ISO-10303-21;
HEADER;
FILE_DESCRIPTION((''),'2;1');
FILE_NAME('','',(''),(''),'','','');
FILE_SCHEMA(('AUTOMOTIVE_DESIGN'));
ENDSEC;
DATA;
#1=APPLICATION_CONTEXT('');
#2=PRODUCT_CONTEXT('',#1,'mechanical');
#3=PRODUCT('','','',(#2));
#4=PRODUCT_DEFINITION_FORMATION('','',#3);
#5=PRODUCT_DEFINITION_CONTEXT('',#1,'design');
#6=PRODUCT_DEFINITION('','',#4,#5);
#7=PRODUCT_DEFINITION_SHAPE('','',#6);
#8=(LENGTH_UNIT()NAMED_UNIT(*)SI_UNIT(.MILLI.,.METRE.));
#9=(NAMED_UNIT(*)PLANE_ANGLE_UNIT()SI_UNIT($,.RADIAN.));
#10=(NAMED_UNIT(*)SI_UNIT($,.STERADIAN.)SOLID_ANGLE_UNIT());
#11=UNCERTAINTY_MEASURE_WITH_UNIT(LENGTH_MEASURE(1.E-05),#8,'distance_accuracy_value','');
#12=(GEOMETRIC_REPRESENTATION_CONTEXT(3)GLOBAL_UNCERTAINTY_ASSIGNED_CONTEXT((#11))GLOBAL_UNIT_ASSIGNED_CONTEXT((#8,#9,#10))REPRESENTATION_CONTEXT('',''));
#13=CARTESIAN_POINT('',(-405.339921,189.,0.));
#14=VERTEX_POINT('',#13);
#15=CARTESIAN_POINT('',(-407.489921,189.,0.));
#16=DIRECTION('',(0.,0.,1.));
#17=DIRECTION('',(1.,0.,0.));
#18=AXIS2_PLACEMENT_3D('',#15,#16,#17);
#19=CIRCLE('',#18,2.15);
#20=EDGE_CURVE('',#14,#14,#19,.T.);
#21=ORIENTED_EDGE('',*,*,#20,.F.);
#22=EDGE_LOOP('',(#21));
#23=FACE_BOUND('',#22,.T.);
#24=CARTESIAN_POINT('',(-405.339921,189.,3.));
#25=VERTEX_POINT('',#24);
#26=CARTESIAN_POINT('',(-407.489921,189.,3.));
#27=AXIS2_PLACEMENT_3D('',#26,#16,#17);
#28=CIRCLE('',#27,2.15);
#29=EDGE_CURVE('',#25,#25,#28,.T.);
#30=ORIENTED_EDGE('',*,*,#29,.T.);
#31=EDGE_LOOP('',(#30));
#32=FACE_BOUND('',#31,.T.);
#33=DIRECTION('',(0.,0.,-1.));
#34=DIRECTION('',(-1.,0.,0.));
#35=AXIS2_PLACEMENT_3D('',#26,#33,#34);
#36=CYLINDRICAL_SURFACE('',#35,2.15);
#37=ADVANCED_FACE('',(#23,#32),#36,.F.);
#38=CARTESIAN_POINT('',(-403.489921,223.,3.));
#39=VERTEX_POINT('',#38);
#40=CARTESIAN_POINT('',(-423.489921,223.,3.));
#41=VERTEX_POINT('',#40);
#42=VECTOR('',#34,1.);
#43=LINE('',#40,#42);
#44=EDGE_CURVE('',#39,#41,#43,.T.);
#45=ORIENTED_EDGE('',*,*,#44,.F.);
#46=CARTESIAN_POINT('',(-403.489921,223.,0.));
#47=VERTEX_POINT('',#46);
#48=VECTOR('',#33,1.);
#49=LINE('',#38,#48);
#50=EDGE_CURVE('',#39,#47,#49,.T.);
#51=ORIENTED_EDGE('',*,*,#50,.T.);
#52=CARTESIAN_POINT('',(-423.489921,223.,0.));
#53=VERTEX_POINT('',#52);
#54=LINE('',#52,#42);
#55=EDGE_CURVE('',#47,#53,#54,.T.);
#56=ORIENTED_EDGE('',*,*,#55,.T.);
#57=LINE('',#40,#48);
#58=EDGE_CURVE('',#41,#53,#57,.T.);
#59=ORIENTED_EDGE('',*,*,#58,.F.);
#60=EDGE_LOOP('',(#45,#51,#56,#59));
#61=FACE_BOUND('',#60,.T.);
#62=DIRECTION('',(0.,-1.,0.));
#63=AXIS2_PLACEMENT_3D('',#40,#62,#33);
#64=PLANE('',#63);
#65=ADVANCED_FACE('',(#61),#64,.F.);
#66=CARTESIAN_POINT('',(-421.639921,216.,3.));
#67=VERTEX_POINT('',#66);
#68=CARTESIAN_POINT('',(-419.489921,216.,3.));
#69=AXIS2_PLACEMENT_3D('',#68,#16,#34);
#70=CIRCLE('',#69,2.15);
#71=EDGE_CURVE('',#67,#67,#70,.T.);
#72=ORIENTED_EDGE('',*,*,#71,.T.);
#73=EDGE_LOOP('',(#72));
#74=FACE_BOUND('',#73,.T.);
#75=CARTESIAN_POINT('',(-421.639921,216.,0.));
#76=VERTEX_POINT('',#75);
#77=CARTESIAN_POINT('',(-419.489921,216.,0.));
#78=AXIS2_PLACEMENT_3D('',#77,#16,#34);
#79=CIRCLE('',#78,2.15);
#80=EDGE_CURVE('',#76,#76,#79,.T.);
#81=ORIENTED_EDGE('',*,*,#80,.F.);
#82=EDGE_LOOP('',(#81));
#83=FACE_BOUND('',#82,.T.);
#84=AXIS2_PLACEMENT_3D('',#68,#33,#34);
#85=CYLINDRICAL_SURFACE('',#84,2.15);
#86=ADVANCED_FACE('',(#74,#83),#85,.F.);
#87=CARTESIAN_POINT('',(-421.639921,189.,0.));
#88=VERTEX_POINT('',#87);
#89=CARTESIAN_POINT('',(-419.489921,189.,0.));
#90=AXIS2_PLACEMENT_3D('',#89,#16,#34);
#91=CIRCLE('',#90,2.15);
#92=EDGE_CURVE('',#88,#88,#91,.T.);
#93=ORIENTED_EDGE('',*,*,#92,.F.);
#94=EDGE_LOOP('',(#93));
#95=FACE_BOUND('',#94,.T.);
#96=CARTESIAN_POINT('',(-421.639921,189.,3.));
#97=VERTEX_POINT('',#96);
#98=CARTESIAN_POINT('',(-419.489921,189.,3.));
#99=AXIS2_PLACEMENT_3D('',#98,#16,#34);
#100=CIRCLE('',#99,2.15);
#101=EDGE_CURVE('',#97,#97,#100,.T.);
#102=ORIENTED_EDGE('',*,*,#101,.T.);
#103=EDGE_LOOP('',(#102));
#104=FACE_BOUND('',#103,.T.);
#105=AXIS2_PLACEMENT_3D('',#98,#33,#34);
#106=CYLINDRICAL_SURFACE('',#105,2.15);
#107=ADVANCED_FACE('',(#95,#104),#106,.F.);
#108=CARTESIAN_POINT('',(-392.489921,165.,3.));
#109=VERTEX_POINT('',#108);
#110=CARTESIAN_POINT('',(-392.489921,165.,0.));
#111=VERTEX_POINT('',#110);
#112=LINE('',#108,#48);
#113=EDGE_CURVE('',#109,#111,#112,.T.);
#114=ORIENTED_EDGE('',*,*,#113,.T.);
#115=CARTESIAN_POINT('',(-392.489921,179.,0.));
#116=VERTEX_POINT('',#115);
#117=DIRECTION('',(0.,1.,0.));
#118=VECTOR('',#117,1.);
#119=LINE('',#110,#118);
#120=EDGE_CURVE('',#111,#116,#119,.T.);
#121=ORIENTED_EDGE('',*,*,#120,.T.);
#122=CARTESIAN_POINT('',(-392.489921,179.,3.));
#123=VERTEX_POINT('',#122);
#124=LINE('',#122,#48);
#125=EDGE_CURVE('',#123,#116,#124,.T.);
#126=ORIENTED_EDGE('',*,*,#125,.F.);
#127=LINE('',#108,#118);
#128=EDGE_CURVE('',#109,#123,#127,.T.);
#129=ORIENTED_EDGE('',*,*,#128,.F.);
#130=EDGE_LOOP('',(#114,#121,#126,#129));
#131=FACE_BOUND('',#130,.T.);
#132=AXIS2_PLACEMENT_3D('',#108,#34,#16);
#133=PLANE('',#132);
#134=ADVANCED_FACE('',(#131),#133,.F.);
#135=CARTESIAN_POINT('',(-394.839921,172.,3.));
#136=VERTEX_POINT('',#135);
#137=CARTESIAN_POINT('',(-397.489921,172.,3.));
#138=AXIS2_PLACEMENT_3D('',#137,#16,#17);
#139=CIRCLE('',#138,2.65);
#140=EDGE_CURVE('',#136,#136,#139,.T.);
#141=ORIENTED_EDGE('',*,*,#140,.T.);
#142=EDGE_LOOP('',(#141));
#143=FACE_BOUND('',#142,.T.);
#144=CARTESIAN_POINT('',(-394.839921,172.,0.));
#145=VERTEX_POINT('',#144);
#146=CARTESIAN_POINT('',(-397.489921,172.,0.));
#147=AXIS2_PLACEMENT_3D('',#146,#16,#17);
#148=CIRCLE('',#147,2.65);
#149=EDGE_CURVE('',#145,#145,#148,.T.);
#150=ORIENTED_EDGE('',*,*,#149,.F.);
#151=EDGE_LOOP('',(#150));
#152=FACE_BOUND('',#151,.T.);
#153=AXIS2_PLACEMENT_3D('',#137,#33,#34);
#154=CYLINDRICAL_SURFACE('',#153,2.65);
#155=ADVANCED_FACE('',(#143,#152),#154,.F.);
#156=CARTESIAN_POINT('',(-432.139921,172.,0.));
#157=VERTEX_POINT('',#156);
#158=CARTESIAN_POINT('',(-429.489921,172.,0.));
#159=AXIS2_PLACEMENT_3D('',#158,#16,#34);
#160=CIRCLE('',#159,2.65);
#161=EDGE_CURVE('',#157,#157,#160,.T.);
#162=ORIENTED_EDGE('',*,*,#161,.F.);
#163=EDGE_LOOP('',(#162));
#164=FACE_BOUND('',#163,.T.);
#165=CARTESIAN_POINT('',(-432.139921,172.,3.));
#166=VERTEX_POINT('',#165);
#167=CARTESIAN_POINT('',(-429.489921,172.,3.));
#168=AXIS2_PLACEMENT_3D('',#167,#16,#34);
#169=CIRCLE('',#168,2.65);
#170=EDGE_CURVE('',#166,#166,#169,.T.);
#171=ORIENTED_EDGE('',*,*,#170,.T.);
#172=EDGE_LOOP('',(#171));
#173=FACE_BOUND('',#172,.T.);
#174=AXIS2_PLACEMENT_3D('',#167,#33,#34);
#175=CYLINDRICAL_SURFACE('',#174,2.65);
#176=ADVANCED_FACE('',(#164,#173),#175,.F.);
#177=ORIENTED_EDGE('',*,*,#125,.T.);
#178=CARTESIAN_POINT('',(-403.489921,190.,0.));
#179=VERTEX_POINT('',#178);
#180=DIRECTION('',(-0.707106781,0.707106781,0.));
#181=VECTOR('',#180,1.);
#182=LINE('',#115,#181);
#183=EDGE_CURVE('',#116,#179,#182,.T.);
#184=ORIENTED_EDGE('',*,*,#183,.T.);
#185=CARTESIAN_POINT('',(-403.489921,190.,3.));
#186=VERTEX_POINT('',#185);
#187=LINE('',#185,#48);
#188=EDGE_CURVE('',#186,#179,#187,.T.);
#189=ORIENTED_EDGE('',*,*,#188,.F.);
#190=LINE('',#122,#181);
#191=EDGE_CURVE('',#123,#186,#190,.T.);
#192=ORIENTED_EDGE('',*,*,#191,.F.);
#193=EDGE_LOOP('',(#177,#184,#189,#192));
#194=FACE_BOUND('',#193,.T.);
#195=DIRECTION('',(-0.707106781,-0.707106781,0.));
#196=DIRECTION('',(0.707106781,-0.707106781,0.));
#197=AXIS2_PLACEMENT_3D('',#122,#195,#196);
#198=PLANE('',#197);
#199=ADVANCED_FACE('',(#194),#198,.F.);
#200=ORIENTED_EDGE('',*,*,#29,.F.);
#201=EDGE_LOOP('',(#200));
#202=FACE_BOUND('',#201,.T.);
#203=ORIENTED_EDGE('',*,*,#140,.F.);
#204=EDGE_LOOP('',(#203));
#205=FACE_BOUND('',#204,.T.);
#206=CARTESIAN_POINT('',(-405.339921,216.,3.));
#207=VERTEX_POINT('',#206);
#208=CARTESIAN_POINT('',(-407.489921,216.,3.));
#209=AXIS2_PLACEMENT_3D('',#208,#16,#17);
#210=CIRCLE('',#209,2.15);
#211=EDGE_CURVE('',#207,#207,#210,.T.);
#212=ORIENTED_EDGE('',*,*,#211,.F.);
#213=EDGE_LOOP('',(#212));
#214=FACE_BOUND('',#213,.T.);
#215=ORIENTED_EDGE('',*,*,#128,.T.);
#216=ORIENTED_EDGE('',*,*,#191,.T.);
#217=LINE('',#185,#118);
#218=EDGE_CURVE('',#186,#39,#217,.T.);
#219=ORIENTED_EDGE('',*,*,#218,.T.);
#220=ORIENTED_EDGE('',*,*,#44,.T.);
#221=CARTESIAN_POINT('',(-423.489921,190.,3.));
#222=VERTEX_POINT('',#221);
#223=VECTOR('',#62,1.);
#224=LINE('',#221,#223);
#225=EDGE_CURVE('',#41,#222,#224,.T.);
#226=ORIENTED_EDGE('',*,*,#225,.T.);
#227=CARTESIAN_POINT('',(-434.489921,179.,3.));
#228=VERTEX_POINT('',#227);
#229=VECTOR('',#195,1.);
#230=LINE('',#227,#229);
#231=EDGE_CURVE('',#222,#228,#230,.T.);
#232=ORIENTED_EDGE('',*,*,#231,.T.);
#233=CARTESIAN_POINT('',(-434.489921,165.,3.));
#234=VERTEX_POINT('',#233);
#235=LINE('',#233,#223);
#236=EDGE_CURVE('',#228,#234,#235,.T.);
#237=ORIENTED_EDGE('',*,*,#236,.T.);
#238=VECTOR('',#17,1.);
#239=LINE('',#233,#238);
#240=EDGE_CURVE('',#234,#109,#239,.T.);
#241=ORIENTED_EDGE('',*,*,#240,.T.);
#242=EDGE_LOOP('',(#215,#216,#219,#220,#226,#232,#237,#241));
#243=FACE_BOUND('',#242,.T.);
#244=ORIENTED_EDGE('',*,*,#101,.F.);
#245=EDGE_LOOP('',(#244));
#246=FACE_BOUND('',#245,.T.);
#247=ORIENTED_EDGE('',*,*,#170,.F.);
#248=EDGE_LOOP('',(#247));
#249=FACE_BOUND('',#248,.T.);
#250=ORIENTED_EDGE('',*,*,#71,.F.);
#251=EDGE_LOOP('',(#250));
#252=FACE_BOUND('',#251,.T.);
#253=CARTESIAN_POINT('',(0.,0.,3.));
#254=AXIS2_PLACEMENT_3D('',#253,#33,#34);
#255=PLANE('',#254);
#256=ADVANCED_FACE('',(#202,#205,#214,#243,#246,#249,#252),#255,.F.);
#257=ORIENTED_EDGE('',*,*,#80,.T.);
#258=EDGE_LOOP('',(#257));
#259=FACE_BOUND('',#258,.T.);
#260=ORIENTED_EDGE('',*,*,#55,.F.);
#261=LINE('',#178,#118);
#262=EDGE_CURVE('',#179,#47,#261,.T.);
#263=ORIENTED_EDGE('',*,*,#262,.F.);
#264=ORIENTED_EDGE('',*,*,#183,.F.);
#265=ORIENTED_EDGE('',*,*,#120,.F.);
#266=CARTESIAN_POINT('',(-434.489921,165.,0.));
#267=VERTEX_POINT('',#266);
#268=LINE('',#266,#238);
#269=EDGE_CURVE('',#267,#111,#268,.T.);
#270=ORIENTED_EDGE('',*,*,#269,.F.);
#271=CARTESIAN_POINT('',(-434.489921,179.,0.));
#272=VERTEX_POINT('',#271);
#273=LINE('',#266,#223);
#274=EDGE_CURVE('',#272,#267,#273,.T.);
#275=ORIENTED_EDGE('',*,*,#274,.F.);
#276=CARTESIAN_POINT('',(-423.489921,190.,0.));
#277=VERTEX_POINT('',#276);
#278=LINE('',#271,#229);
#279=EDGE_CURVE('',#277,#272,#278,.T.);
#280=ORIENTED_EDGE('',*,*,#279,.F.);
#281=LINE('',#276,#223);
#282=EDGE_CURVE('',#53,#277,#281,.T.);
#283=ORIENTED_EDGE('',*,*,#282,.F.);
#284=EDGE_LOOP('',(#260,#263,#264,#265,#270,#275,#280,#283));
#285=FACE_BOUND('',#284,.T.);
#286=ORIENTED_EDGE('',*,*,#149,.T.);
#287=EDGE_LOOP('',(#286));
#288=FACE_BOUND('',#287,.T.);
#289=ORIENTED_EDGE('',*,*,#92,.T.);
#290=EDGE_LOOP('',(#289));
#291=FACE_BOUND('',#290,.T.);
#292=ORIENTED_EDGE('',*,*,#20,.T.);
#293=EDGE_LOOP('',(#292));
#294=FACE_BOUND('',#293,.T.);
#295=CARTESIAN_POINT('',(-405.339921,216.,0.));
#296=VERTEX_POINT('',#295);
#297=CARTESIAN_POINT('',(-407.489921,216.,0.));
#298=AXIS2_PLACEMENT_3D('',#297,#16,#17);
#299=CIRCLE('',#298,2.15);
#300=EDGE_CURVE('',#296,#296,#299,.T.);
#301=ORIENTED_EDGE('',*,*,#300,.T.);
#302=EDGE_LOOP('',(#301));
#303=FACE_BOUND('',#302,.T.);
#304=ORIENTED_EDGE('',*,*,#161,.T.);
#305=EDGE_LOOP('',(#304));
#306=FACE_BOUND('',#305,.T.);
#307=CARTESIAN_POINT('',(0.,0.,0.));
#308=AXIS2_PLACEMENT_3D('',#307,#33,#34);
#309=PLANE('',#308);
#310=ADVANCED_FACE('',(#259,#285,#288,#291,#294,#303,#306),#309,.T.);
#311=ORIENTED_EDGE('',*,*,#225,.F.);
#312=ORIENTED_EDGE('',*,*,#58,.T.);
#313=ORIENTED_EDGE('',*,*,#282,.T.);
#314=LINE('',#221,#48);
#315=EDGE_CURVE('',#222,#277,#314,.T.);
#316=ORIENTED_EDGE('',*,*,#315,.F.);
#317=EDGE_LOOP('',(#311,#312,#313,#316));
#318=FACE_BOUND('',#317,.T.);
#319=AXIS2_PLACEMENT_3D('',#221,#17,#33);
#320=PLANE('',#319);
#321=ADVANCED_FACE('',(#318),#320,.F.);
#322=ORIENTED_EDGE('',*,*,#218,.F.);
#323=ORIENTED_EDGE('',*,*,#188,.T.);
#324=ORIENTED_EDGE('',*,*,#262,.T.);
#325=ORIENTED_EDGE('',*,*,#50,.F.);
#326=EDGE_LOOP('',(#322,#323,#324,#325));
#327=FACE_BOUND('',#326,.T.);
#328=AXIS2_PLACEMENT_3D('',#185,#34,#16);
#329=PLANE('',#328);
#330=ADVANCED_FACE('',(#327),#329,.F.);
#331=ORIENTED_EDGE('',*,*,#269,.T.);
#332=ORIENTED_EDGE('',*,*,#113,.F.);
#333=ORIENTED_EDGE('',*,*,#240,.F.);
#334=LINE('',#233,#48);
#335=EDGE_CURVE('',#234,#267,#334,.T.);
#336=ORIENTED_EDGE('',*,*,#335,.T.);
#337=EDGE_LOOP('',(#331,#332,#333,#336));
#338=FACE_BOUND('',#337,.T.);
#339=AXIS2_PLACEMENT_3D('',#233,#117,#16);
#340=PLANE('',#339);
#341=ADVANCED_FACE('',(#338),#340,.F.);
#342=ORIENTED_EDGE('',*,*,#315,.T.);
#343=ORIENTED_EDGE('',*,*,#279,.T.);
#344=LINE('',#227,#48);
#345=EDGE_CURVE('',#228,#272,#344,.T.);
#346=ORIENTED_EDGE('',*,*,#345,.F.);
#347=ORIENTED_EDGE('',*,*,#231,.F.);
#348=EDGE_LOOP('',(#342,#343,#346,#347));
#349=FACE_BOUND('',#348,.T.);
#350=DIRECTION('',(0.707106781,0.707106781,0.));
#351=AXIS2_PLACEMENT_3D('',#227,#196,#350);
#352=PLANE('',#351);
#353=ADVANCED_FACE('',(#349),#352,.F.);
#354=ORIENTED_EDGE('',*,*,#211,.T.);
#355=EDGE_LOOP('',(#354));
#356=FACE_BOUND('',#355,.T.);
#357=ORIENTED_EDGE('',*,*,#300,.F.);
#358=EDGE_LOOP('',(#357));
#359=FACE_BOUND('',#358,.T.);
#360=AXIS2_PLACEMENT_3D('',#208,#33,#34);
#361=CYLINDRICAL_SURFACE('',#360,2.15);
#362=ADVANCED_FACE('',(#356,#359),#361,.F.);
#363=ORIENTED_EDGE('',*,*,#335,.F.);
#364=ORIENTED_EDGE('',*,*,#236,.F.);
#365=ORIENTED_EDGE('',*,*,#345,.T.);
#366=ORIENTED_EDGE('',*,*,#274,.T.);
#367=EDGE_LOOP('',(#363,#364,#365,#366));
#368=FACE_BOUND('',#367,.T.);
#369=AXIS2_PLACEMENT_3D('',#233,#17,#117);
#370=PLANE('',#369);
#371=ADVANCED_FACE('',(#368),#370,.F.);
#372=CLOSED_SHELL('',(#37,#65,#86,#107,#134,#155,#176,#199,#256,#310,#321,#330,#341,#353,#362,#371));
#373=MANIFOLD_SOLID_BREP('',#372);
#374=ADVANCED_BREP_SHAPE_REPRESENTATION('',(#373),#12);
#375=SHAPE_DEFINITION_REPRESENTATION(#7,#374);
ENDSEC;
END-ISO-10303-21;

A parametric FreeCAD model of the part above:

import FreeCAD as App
import Part
import Sketcher

V = App.Vector
Q = App.Units.Quantity


def add_polygon(sketch, points):
    """Adds a closed chain of lines whose ends are joined by coincident constraints."""
    first, n = sketch.GeometryCount, len(points)
    for a, b in zip(points, points[1:] + points[:1]):
        sketch.addGeometry(Part.LineSegment(App.Vector(*a, 0), App.Vector(*b, 0)), False)
    for i in range(n):
        sketch.addConstraint(Sketcher.Constraint("Coincident", first + i, 2, first + (i + 1) % n, 1))

doc = App.newDocument("Part")
params = doc.addObject("Spreadsheet::Sheet", "Params")
for row, (alias, value) in enumerate([
    ("sketch1_diameter", "5.3 mm"),
    ("sketch1_diameter2", "4.3 mm"),
    ("sketch1_width", "42 mm"),
    ("sketch1_width2", "20 mm"),
    ("sketch1_height", "14 mm"),
    ("pad1_length", "3 mm"),
], start=1):
    params.set(f"A{row}", alias)
    params.set(f"B{row}", "=" + value)
    params.setAlias(f"B{row}", alias)

body = doc.addObject("PartDesign::Body", "Body")

sketch1 = body.newObject("Sketcher::SketchObject", "Sketch")
sketch1.AttachmentSupport = (doc.getObject("XY_Plane"), [""])
sketch1.MapMode = "FlatFace"
add_polygon(sketch1, [(-434.5, 165), (-392.5, 165), (-392.5, 179), (-403.5, 190), (-403.5, 223), (-423.5, 223), (-423.5, 190), (-434.5, 179)])
sketch1.addGeometry(Part.Circle(V(-429.5, 172, 0), V(0, 0, 1), 2.6), False)
sketch1.addGeometry(Part.Circle(V(-419.5, 189, 0), V(0, 0, 1), 2.1), False)
sketch1.addGeometry(Part.Circle(V(-397.5, 172, 0), V(0, 0, 1), 2.6), False)
sketch1.addGeometry(Part.Circle(V(-407.5, 189, 0), V(0, 0, 1), 2.1), False)
sketch1.addGeometry(Part.Circle(V(-419.5, 216, 0), V(0, 0, 1), 2.1), False)
sketch1.addGeometry(Part.Circle(V(-407.5, 216, 0), V(0, 0, 1), 2.1), False)
sketch1.addConstraint([
    Sketcher.Constraint("Horizontal", 0),
    Sketcher.Constraint("Vertical", 1),
    Sketcher.Constraint("Vertical", 3),
    Sketcher.Constraint("Horizontal", 4),
    Sketcher.Constraint("Vertical", 5),
    Sketcher.Constraint("Vertical", 7),
    Sketcher.Constraint("Equal", 8, 10),
    Sketcher.Constraint("Equal", 9, 11),
    Sketcher.Constraint("Equal", 11, 12),
    Sketcher.Constraint("Equal", 12, 13),
    Sketcher.Constraint("Perpendicular", 2, 6),
    Sketcher.Constraint("Horizontal", 8, 3, 10, 3),
    Sketcher.Constraint("Horizontal", 9, 3, 11, 3),
    Sketcher.Constraint("Horizontal", 12, 3, 13, 3),
    Sketcher.Constraint("Horizontal", 2, 2, 5, 2),
    Sketcher.Constraint("Horizontal", 1, 2, 6, 2),
    Sketcher.Constraint("Vertical", 9, 3, 12, 3),
    Sketcher.Constraint("Vertical", 11, 3, 13, 3),
    Sketcher.Constraint("Equal", 2, 6),
    Sketcher.Constraint("Diameter", 8, Q("5.3 mm")),
    Sketcher.Constraint("Diameter", 9, Q("4.3 mm")),
    Sketcher.Constraint("DistanceX", 0, 1, 0, 2, Q("42 mm")),
    Sketcher.Constraint("DistanceX", 4, 2, 4, 1, Q("20 mm")),
    Sketcher.Constraint("DistanceY", 1, 1, 1, 2, Q("14 mm")),
    Sketcher.Constraint("DistanceY", 3, 1, 3, 2, Q("33 mm")),
    Sketcher.Constraint("DistanceY", -1, 1, 8, 3, Q("172 mm")),
    Sketcher.Constraint("DistanceY", -1, 1, 9, 3, Q("189 mm")),
    Sketcher.Constraint("DistanceY", -1, 1, 12, 3, Q("216 mm")),
    Sketcher.Constraint("DistanceY", -1, 1, 0, 2, Q("165 mm")),
    Sketcher.Constraint("DistanceX", 8, 3, 9, 3, Q("10 mm")),
    Sketcher.Constraint("DistanceX", 9, 3, 10, 3, Q("22 mm")),
    Sketcher.Constraint("DistanceX", 9, 3, 11, 3, Q("12 mm")),
    Sketcher.Constraint("DistanceX", 10, 3, 0, 2, Q("5 mm")),
    Sketcher.Constraint("DistanceX", 8, 3, -1, 1, Q("429.489921 mm")),
])
sketch1.setExpression("Constraints[27]", "Params.sketch1_diameter")
sketch1.setExpression("Constraints[28]", "Params.sketch1_diameter2")
sketch1.setExpression("Constraints[29]", "Params.sketch1_width")
sketch1.setExpression("Constraints[30]", "Params.sketch1_width2")
sketch1.setExpression("Constraints[31]", "Params.sketch1_height")
pad1 = body.newObject("PartDesign::Pad", "Pad")
pad1.Profile = sketch1
pad1.setExpression("Length", "Params.pad1_length")

doc.recompute()
